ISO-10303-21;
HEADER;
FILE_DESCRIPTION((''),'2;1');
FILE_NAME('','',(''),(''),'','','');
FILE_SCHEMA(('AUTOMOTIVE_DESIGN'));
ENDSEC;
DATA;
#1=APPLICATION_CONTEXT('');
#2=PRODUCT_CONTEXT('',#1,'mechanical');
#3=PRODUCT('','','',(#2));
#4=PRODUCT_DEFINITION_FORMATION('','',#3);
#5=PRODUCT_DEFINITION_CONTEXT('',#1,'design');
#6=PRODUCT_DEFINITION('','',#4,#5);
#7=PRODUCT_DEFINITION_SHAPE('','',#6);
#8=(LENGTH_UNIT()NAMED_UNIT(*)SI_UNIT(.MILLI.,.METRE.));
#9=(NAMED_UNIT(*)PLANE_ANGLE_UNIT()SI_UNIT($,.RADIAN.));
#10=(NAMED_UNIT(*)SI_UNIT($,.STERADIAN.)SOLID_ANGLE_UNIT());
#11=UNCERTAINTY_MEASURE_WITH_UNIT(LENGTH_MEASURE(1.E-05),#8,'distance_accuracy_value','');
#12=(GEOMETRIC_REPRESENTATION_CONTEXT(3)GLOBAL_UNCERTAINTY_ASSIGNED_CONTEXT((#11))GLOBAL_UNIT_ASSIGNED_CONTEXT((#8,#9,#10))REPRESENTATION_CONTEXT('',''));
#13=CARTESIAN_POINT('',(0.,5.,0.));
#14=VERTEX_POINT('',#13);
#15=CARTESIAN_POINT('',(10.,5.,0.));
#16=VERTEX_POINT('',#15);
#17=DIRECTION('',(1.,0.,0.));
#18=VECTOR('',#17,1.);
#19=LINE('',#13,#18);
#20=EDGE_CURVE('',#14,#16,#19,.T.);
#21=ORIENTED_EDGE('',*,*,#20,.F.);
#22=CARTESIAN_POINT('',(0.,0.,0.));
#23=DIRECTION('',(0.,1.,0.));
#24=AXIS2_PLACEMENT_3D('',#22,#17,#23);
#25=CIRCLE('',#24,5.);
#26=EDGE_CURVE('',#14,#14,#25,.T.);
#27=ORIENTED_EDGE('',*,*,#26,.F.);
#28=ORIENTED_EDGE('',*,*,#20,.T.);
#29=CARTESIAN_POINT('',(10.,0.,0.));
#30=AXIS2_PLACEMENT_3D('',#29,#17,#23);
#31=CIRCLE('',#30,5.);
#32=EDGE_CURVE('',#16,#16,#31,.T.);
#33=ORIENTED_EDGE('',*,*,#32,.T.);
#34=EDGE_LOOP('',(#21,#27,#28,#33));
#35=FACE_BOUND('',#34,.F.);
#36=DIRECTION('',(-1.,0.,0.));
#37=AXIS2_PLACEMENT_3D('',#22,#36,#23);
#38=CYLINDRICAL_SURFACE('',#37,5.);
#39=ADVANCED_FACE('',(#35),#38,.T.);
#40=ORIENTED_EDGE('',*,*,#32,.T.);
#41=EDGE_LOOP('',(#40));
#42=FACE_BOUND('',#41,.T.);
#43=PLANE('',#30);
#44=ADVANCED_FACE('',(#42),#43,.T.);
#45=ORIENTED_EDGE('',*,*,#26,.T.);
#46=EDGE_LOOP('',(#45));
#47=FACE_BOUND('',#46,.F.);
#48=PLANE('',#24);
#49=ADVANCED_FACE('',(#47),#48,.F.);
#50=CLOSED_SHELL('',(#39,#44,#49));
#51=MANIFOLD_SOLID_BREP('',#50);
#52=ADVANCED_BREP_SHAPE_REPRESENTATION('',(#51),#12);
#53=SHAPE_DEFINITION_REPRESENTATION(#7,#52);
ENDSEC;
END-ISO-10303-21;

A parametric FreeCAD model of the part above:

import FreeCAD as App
import Part
import Sketcher
from FreeCAD import Vector
Q = App.Units.Quantity

doc = App.newDocument("Part")
params = doc.addObject("Spreadsheet::Sheet", "Params")
for row, (alias, value) in enumerate([
    ("sketch1_diameter", "10 mm"),
    ("pad1_length", "10 mm"),
], start=1):
    params.set(f"A{row}", alias)
    params.set(f"B{row}", "=" + value)
    params.setAlias(f"B{row}", alias)

body = doc.addObject("PartDesign::Body", "Body")

sketch1 = doc.addObject("Sketcher::SketchObject", "Sketch")
body.addObject(sketch1)
sketch1.AttachmentSupport = (doc.YZ_Plane, [""])
sketch1.MapMode = "FlatFace"
sketch1.addGeometry(Part.Circle(Vector(0, 0, 0), Vector(0, 0, 1), 5), False)
sketch1.addConstraint([
    Sketcher.Constraint("Coincident", 0, 3, -1, 1),
    Sketcher.Constraint("Diameter", 0, Q("10 mm")),
])
sketch1.setExpression("Constraints[1]", "Params.sketch1_diameter")
pad1 = doc.addObject("PartDesign::Pad", "Pad")
body.addObject(pad1)
pad1.Profile = sketch1
pad1.setExpression("Length", "Params.pad1_length")

doc.recompute()
